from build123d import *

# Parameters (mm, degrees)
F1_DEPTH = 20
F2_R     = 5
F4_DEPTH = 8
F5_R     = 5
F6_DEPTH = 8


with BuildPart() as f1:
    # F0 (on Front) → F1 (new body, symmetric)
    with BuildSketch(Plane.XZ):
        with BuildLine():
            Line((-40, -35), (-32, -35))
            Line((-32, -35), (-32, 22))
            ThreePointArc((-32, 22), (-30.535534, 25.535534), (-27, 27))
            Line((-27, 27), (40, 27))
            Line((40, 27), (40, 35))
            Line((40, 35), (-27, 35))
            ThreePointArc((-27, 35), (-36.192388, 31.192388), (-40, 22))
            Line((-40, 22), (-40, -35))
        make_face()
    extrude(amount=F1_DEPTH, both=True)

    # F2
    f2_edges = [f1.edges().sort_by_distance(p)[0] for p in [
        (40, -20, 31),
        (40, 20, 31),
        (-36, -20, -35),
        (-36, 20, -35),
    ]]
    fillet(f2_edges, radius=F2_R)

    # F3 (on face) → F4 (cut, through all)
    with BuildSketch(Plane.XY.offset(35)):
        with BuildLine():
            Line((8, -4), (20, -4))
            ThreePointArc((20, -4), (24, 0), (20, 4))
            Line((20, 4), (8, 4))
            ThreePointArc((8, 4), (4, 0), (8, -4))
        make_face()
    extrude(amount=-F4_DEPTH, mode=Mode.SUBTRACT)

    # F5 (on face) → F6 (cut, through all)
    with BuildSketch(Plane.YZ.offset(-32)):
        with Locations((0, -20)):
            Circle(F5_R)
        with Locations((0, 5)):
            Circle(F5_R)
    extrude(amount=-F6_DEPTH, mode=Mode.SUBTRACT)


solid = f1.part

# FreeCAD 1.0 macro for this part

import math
import FreeCAD as App
import Part
import Sketcher

V = App.Vector


def edges_at(feature, points):
    """Names of the edges that pass closest to the given points."""
    edges = feature.Shape.Edges
    near = lambda p: min(range(len(edges)), key=lambda i: edges[i].distToShape(Part.Vertex(*p))[0])
    return sorted({f"Edge{near(p) + 1}" for p in points})

doc = App.newDocument("Part")
params = doc.addObject("Spreadsheet::Sheet", "Params")
for row, (alias, value) in enumerate([
    ("sketch1_radius", "5 mm"),
    ("sketch1_radius2", "13.000001 mm"),
    ("sketch1_width", "67 mm"),
    ("sketch1_height", "57 mm"),
    ("pad1_length", "40 mm"),
    ("fillet_radius", "5 mm"),
    ("sketch2_radius", "4 mm"),
    ("sketch2_width", "12 mm"),
    ("sketch3_diameter", "10 mm"),
], start=1):
    params.set(f"A{row}", alias)
    params.set(f"B{row}", "=" + value)
    params.setAlias(f"B{row}", alias)

body = doc.addObject("PartDesign::Body", "Body")

# Sketch on XZ plane
sketch1 = doc.addObject("Sketcher::SketchObject", "Sketch")
body.addObject(sketch1)
sketch1.AttachmentSupport = (doc.XZ_Plane, [""])
sketch1.MapMode = "FlatFace"
sketch1.addGeometry(Part.LineSegment(V(-40, -35, 0), V(-32, -35, 0)), False)
sketch1.addGeometry(Part.LineSegment(V(-32, -35, 0), V(-32, 22, 0)), False)
sketch1.addGeometry(Part.ArcOfCircle(Part.Circle(V(-27, 22, 0), V(0, 0, 1), 5), math.radians(90), math.radians(180)), False)
sketch1.addGeometry(Part.LineSegment(V(-27, 27, 0), V(40, 27, 0)), False)
sketch1.addGeometry(Part.LineSegment(V(40, 27, 0), V(40, 35, 0)), False)
sketch1.addGeometry(Part.LineSegment(V(40, 35, 0), V(-27, 35, 0)), False)
sketch1.addGeometry(Part.ArcOfCircle(Part.Circle(V(-27, 22, 0), V(0, 0, 1), 13), math.radians(90), math.radians(180)), False)
sketch1.addGeometry(Part.LineSegment(V(-40, 22, 0), V(-40, -35, 0)), False)
sketch1.addConstraint(Sketcher.Constraint("Coincident", 0, 2, 1, 1))
sketch1.addConstraint(Sketcher.Constraint("Tangent", 1, 2, 2, 2))
sketch1.addConstraint(Sketcher.Constraint("Tangent", 2, 1, 3, 1))
sketch1.addConstraint(Sketcher.Constraint("Coincident", 3, 2, 4, 1))
sketch1.addConstraint(Sketcher.Constraint("Coincident", 4, 2, 5, 1))
sketch1.addConstraint(Sketcher.Constraint("Tangent", 5, 2, 6, 1))
sketch1.addConstraint(Sketcher.Constraint("Tangent", 6, 2, 7, 1))
sketch1.addConstraint(Sketcher.Constraint("Coincident", 7, 2, 0, 1))
sketch1.addConstraint(Sketcher.Constraint("Horizontal", 0))
sketch1.addConstraint(Sketcher.Constraint("Vertical", 1))
sketch1.addConstraint(Sketcher.Constraint("Horizontal", 3))
sketch1.addConstraint(Sketcher.Constraint("Vertical", 4))
sketch1.addConstraint(Sketcher.Constraint("Horizontal", 5))
sketch1.addConstraint(Sketcher.Constraint("Vertical", 7))
sketch1.addConstraint(Sketcher.Constraint("Coincident", 6, 3, 2, 3))
sketch1.addConstraint(Sketcher.Constraint("Symmetric", 4, 2, 7, 2, -1, 1))
sketch1.addConstraint(Sketcher.Constraint("Radius", 2, 5.0))
sketch1.addConstraint(Sketcher.Constraint("Radius", 6, 13.000001))
sketch1.addConstraint(Sketcher.Constraint("DistanceX", 3, 1, 3, 2, 67.0))
sketch1.addConstraint(Sketcher.Constraint("DistanceY", 1, 1, 1, 2, 57.0))
sketch1.setExpression("Constraints[16]", "Params.sketch1_radius")
sketch1.setExpression("Constraints[17]", "Params.sketch1_radius2")
sketch1.setExpression("Constraints[18]", "Params.sketch1_width")
sketch1.setExpression("Constraints[19]", "Params.sketch1_height")
pad1 = doc.addObject("PartDesign::Pad", "Pad")
body.addObject(pad1)
pad1.Profile = sketch1
pad1.setExpression("Length", "Params.pad1_length")
pad1.Midplane = True
doc.recompute()

fillet = doc.addObject("PartDesign::Fillet", "Fillet")
body.addObject(fillet)
fillet.Base = (pad1, edges_at(pad1, [
    (40, -20, 31),
    (40, 20, 31),
    (-36, -20, -35),
    (-36, 20, -35),
]))
fillet.setExpression("Radius", "Params.fillet_radius")

# Sketch on XY plane
sketch2 = doc.addObject("Sketcher::SketchObject", "Sketch001")
body.addObject(sketch2)
sketch2.AttachmentSupport = (doc.XY_Plane, [""])
sketch2.MapMode = "FlatFace"
sketch2.AttachmentOffset = App.Placement(V(0, 0, 35), App.Rotation())
sketch2.addGeometry(Part.LineSegment(V(8, -4, 0), V(20, -4, 0)), False)
sketch2.addGeometry(Part.ArcOfCircle(Part.Circle(V(20, 0, 0), V(0, 0, 1), 4), math.radians(-90), math.radians(90)), False)
sketch2.addGeometry(Part.LineSegment(V(20, 4, 0), V(8, 4, 0)), False)
sketch2.addGeometry(Part.ArcOfCircle(Part.Circle(V(8, 0, 0), V(0, 0, 1), 4), math.radians(90), math.radians(270)), False)
sketch2.addConstraint(Sketcher.Constraint("Tangent", 0, 2, 1, 1))
sketch2.addConstraint(Sketcher.Constraint("Tangent", 1, 2, 2, 1))
sketch2.addConstraint(Sketcher.Constraint("Tangent", 2, 2, 3, 1))
sketch2.addConstraint(Sketcher.Constraint("Tangent", 3, 2, 0, 1))
sketch2.addConstraint(Sketcher.Constraint("Horizontal", 0))
sketch2.addConstraint(Sketcher.Constraint("Horizontal", 2))
sketch2.addConstraint(Sketcher.Constraint("PointOnObject", 1, 3, -1))
sketch2.addConstraint(Sketcher.Constraint("Radius", 1, 4.0))
sketch2.addConstraint(Sketcher.Constraint("DistanceX", 0, 1, 0, 2, 12.0))
sketch2.addConstraint(Sketcher.Constraint("DistanceX", -1, 1, 1, 3, 20.0))
sketch2.setExpression("Constraints[7]", "Params.sketch2_radius")
sketch2.setExpression("Constraints[8]", "Params.sketch2_width")
pocket1 = doc.addObject("PartDesign::Pocket", "Pocket")
body.addObject(pocket1)
pocket1.Profile = sketch2
pocket1.Type = "ThroughAll"

# Sketch on YZ plane
sketch3 = doc.addObject("Sketcher::SketchObject", "Sketch002")
body.addObject(sketch3)
sketch3.AttachmentSupport = (doc.YZ_Plane, [""])
sketch3.MapMode = "FlatFace"
sketch3.AttachmentOffset = App.Placement(V(0, 0, -32), App.Rotation())
sketch3.addGeometry(Part.Circle(V(0, -20, 0), V(0, 0, 1), 5), False)
sketch3.addGeometry(Part.Circle(V(0, 5, 0), V(0, 0, 1), 5), False)
sketch3.addConstraint(Sketcher.Constraint("Equal", 0, 1))
sketch3.addConstraint(Sketcher.Constraint("PointOnObject", 0, 3, -2))
sketch3.addConstraint(Sketcher.Constraint("PointOnObject", 1, 3, -2))
sketch3.addConstraint(Sketcher.Constraint("Diameter", 0, 10.0))
sketch3.addConstraint(Sketcher.Constraint("DistanceY", 0, 3, -1, 1, 20.0))
sketch3.addConstraint(Sketcher.Constraint("DistanceY", -1, 1, 1, 3, 5.0))
sketch3.setExpression("Constraints[3]", "Params.sketch3_diameter")
pocket2 = doc.addObject("PartDesign::Pocket", "Pocket001")
body.addObject(pocket2)
pocket2.Profile = sketch3
pocket2.Type = "ThroughAll"

doc.recompute()
